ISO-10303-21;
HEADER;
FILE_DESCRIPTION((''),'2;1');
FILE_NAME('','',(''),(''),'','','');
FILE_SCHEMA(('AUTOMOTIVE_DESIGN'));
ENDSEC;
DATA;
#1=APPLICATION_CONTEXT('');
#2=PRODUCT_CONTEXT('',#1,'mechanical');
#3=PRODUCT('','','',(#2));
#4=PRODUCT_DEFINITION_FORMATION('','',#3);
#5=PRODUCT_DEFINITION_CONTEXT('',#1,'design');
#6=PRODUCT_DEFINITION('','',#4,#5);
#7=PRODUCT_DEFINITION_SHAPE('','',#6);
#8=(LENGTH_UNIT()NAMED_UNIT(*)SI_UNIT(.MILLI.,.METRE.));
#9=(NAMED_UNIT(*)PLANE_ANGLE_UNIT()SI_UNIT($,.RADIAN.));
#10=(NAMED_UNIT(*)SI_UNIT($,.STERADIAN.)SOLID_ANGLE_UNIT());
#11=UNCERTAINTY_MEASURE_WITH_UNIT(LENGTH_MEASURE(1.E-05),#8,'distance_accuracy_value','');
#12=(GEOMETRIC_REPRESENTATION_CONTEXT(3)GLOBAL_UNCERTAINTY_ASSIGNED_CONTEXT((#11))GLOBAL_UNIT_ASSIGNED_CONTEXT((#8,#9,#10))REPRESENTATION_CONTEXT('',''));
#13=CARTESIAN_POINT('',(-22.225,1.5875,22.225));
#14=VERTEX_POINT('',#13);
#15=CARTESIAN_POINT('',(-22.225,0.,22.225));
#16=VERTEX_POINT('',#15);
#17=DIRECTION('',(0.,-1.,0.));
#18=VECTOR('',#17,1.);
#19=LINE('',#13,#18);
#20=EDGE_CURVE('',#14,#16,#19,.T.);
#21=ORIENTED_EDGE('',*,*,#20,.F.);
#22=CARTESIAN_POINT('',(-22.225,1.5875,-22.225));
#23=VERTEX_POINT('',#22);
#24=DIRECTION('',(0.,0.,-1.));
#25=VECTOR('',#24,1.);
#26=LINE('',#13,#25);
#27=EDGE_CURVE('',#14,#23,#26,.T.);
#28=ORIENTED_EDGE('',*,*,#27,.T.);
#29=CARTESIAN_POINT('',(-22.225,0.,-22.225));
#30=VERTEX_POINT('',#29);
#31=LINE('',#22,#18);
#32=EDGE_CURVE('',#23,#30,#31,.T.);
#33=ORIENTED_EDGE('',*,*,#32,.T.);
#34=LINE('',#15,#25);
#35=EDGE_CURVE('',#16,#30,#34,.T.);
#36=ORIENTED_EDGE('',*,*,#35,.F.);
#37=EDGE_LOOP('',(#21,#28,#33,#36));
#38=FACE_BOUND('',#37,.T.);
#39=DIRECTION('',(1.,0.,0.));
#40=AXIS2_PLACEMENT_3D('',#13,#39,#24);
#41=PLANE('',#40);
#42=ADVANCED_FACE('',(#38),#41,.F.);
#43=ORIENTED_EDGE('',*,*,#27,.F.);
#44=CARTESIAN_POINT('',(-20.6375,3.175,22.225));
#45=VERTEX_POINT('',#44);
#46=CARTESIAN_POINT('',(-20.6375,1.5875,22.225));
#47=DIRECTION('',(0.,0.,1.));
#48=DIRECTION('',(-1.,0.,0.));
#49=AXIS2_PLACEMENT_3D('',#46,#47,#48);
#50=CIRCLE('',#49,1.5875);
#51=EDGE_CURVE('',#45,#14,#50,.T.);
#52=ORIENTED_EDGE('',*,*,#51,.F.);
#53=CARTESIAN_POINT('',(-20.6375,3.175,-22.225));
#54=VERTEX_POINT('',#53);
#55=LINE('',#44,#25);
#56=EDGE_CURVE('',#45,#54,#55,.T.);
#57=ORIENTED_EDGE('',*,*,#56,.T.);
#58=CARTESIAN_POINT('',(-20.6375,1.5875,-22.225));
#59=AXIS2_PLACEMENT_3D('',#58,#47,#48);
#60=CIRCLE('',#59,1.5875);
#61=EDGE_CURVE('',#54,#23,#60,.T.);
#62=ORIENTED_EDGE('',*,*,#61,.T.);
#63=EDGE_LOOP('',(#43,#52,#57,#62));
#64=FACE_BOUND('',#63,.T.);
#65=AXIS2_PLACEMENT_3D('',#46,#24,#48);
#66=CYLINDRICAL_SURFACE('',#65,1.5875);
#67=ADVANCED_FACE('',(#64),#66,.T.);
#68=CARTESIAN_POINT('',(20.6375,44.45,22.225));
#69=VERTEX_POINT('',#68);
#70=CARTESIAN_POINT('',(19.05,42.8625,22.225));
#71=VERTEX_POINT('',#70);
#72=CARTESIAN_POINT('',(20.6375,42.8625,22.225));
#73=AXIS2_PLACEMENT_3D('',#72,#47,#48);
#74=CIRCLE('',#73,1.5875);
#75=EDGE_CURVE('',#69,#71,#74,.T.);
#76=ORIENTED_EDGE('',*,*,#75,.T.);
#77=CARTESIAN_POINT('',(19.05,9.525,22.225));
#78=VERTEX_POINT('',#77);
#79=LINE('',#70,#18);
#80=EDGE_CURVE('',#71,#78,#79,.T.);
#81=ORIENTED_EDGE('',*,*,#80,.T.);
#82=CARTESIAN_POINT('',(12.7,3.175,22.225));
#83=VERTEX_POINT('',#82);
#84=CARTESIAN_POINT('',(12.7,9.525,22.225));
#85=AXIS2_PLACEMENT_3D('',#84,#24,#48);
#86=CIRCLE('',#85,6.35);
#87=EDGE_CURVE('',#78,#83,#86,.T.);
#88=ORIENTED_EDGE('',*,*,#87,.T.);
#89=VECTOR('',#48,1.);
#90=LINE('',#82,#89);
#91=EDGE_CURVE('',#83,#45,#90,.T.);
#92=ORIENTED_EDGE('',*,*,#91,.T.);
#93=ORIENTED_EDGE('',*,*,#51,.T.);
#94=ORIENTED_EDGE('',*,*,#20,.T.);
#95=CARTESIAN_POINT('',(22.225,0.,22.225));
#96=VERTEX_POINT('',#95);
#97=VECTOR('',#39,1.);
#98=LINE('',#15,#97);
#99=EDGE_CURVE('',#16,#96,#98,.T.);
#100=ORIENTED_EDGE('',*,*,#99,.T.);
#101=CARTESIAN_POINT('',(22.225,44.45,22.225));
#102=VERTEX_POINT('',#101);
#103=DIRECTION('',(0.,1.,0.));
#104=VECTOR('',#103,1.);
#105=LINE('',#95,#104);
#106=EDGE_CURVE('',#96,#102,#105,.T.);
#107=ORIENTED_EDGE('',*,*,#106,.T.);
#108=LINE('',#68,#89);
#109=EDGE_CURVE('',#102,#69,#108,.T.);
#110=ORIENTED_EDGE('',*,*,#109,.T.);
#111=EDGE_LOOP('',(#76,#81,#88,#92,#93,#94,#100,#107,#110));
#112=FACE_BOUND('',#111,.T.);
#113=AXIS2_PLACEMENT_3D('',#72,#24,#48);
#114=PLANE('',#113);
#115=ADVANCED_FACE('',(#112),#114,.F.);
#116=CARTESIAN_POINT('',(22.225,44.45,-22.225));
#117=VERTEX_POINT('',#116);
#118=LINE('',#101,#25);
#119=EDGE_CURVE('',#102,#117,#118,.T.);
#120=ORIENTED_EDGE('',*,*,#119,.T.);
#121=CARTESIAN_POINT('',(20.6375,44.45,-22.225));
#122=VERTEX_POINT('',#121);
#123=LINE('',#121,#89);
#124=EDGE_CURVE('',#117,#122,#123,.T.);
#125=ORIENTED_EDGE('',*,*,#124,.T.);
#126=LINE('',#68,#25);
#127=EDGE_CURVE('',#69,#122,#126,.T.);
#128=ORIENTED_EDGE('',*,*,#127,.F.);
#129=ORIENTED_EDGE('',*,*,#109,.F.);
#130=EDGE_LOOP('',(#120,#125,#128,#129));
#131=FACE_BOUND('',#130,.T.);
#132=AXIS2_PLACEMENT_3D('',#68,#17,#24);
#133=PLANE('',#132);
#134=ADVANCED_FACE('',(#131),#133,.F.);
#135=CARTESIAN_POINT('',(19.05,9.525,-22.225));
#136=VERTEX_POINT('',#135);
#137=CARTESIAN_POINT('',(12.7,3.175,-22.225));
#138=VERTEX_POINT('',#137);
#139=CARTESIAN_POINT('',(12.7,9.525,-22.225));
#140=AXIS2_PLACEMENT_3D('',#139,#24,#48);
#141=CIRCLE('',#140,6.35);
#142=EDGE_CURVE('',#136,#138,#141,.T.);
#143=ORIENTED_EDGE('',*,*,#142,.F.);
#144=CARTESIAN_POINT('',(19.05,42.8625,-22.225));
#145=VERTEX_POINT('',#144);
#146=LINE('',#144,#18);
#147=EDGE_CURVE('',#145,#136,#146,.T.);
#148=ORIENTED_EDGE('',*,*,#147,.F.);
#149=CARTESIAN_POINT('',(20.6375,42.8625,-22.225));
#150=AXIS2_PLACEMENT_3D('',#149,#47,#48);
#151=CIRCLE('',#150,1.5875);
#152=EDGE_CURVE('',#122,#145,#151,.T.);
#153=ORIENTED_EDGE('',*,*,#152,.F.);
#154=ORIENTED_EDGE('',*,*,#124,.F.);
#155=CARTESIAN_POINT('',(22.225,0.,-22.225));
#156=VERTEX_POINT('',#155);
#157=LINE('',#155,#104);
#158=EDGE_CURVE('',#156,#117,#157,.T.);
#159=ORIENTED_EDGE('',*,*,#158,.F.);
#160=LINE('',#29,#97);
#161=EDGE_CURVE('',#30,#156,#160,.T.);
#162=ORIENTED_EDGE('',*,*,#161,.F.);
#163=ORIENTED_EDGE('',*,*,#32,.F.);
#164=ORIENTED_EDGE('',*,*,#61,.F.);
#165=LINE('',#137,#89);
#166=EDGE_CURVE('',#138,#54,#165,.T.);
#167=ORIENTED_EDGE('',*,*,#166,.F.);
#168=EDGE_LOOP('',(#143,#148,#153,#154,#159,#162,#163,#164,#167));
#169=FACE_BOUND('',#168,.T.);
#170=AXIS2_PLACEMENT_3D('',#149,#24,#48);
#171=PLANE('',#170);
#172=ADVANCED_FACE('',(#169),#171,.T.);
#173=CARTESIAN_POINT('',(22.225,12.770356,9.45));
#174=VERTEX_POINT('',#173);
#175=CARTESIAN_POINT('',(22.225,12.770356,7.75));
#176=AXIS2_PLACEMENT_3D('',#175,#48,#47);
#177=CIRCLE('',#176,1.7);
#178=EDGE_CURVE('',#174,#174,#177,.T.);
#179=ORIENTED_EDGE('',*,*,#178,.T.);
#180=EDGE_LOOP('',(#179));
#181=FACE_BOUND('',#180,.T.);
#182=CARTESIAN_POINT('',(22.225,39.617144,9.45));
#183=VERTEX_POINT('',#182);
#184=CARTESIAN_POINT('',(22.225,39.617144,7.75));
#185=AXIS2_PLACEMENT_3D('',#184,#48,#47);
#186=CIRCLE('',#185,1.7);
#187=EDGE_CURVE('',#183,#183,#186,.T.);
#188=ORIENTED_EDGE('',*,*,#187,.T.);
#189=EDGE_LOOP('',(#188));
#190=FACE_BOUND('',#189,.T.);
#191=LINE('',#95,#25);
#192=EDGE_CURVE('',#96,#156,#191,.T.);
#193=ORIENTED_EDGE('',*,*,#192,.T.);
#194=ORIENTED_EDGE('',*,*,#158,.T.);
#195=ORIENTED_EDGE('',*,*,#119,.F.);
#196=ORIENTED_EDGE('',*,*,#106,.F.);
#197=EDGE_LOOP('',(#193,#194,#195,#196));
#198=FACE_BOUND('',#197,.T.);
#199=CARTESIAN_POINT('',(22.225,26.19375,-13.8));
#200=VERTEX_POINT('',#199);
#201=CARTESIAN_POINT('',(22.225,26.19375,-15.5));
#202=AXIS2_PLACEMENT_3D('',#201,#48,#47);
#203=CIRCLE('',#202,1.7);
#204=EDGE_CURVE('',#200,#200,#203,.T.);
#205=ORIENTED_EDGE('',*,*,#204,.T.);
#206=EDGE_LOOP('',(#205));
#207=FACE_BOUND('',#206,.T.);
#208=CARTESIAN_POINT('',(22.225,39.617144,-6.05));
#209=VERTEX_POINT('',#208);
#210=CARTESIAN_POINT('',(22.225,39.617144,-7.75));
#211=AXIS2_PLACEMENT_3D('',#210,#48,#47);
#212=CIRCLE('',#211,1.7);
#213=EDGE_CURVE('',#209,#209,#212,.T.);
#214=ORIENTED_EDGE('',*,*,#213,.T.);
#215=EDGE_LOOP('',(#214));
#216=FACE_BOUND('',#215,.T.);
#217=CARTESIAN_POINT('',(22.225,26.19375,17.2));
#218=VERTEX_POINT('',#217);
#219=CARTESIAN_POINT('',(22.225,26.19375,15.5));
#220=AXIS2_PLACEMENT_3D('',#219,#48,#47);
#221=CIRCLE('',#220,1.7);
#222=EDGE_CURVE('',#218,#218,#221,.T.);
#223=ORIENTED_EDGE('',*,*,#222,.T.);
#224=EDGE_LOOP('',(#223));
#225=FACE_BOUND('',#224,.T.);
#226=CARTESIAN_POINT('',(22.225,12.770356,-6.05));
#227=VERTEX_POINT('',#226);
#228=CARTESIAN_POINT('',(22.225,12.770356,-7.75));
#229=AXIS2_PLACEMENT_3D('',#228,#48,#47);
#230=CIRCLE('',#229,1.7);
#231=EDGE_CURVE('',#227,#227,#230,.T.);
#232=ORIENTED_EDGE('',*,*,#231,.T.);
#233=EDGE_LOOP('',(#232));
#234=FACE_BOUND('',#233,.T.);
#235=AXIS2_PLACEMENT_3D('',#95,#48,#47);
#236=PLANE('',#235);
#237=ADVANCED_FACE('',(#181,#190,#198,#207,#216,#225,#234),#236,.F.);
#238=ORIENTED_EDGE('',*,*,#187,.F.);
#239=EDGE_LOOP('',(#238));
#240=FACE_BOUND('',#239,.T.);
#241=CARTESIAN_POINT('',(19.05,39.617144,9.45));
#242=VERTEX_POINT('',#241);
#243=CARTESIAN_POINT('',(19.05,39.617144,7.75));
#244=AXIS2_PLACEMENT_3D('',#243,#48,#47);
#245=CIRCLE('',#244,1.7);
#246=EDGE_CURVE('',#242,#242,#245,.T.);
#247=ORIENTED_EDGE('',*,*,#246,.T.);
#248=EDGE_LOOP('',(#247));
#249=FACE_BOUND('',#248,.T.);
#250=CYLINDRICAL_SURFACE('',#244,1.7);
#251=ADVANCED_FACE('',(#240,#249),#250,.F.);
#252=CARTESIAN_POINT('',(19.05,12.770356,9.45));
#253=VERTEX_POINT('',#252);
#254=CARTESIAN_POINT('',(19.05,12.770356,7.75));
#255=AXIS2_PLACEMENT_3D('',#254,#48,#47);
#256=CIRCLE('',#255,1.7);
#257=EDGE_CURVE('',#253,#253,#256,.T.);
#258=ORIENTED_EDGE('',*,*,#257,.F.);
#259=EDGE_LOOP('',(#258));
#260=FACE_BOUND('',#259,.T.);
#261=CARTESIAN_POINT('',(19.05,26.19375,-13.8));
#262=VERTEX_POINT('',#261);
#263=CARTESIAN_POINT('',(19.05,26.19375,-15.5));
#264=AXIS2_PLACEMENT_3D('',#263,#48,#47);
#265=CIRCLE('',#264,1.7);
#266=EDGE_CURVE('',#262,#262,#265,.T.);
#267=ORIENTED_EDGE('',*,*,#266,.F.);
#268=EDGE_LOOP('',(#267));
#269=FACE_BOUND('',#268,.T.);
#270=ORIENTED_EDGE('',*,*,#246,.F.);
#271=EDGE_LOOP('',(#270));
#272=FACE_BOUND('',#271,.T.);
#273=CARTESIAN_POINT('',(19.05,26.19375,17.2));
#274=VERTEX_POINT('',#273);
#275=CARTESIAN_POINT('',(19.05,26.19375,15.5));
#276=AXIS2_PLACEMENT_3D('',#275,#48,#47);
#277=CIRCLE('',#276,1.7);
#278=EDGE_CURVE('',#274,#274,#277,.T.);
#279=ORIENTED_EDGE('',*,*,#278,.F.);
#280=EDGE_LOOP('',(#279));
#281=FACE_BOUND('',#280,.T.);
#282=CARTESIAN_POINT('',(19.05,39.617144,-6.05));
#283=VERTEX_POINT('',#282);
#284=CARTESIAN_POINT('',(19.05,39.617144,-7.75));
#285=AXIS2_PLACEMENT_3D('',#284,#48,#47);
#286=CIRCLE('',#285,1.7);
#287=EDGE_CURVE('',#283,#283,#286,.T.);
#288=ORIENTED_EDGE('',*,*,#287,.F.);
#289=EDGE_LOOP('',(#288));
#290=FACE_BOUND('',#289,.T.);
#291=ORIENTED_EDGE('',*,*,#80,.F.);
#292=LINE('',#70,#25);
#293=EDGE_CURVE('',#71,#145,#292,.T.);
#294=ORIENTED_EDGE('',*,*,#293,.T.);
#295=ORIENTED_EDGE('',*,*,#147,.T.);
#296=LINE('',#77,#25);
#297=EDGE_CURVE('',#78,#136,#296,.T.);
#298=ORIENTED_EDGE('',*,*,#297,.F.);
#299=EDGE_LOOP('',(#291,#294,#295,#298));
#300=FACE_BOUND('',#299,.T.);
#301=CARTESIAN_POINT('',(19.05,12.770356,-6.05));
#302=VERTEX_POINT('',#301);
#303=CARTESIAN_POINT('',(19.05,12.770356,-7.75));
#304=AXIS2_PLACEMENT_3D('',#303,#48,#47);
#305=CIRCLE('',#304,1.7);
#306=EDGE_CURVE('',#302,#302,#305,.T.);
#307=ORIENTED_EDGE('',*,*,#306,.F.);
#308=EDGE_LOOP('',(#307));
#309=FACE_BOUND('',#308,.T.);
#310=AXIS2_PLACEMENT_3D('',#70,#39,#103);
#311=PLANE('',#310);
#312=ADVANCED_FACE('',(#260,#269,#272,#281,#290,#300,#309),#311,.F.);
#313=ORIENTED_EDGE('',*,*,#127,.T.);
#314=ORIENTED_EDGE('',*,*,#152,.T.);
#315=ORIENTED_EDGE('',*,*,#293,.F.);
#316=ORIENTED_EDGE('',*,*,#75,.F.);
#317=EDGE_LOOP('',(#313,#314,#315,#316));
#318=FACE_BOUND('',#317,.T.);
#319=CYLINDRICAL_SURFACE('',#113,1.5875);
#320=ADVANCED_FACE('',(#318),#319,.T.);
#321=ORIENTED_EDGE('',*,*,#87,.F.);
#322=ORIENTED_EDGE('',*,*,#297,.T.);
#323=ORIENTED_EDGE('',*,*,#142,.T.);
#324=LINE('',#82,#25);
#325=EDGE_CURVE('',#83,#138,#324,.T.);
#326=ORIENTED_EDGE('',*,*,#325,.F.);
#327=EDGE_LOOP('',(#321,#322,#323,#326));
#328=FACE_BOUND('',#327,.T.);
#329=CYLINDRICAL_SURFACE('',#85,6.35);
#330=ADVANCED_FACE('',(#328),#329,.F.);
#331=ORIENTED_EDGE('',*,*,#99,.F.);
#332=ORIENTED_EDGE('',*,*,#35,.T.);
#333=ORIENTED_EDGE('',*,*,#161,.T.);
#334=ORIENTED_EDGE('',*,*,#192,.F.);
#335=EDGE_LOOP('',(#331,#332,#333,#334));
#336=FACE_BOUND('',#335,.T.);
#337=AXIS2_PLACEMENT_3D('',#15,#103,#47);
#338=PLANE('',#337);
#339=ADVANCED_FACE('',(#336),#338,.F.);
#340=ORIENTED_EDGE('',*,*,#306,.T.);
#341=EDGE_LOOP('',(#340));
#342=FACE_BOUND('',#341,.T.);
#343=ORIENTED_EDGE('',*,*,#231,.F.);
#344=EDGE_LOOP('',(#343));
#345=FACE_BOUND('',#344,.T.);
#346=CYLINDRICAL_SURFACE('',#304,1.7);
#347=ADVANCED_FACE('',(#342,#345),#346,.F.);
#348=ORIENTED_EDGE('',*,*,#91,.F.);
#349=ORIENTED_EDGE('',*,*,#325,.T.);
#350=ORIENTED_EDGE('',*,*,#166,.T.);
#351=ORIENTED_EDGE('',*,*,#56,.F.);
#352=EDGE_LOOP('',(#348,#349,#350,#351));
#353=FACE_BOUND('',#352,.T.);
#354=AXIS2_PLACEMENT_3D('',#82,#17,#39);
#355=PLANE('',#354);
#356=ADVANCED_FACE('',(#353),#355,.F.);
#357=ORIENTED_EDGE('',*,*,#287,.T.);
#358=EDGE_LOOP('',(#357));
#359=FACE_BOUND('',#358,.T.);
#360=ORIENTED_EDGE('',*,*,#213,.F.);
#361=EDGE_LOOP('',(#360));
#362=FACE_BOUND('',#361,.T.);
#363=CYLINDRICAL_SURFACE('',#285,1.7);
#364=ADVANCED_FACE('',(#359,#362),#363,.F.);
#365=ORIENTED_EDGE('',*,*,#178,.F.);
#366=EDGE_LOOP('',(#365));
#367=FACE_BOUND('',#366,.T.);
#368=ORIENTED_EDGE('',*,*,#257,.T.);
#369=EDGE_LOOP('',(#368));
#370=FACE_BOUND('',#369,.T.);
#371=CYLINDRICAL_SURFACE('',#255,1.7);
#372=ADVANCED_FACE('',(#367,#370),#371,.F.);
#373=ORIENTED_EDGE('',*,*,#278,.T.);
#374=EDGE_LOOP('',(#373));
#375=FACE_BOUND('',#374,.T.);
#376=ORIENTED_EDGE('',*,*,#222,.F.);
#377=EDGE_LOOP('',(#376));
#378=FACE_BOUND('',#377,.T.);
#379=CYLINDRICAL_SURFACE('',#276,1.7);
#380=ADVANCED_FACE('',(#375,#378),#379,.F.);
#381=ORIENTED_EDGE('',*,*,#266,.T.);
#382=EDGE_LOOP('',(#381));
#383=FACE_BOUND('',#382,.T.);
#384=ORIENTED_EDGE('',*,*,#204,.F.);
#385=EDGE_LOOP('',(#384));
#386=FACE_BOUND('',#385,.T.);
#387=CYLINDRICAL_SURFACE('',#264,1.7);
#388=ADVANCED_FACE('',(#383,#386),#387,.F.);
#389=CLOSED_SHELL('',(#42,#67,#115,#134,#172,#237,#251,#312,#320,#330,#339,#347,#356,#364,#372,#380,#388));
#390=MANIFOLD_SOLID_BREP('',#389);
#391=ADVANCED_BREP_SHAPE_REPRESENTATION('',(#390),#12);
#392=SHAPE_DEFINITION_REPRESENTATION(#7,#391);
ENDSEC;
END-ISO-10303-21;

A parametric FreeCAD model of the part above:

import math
import FreeCAD as App
import Part
import Sketcher

V = App.Vector
Q = App.Units.Quantity

doc = App.newDocument("Part")
body = doc.addObject("PartDesign::Body", "Body")

sketch1 = doc.addObject("Sketcher::SketchObject", "Sketch")
body.addObject(sketch1)
sketch1.AttachmentSupport = (doc.XY_Plane, [""])
sketch1.MapMode = "FlatFace"
sketch1.addGeometry(Part.LineSegment(V(-22.225, 0, 0), V(22.225, 0, 0)), False)
sketch1.addGeometry(Part.LineSegment(V(22.225, 0, 0), V(22.225, 44.45, 0)), False)
sketch1.addGeometry(Part.LineSegment(V(22.225, 44.45, 0), V(20.6375, 44.45, 0)), False)
sketch1.addGeometry(Part.ArcOfCircle(Part.Circle(V(20.6375, 42.8625, 0), V(0, 0, 1), 1.5875), math.radians(90), math.radians(180)), False)
sketch1.addGeometry(Part.LineSegment(V(19.05, 42.8625, 0), V(19.05, 9.525, 0)), False)
sketch1.addGeometry(Part.ArcOfCircle(Part.Circle(V(12.7, 9.525, 0), V(0, 0, 1), 6.35), math.radians(-90), math.radians(0)), False)
sketch1.addGeometry(Part.LineSegment(V(12.7, 3.175, 0), V(-20.6375, 3.175, 0)), False)
sketch1.addGeometry(Part.ArcOfCircle(Part.Circle(V(-20.6375, 1.5875, 0), V(0, 0, 1), 1.5875), math.radians(90), math.radians(180)), False)
sketch1.addGeometry(Part.LineSegment(V(-22.225, 1.5875, 0), V(-22.225, 0, 0)), False)
sketch1.addConstraint(Sketcher.Constraint("Coincident", 0, 2, 1, 1))
sketch1.addConstraint(Sketcher.Constraint("Coincident", 1, 2, 2, 1))
sketch1.addConstraint(Sketcher.Constraint("Tangent", 2, 2, 3, 1))
sketch1.addConstraint(Sketcher.Constraint("Tangent", 3, 2, 4, 1))
sketch1.addConstraint(Sketcher.Constraint("Tangent", 4, 2, 5, 2))
sketch1.addConstraint(Sketcher.Constraint("Tangent", 5, 1, 6, 1))
sketch1.addConstraint(Sketcher.Constraint("Tangent", 6, 2, 7, 1))
sketch1.addConstraint(Sketcher.Constraint("Tangent", 7, 2, 8, 1))
sketch1.addConstraint(Sketcher.Constraint("Coincident", 8, 2, 0, 1))
sketch1.addConstraint(Sketcher.Constraint("Horizontal", 0))
sketch1.addConstraint(Sketcher.Constraint("Vertical", 1))
sketch1.addConstraint(Sketcher.Constraint("Horizontal", 2))
sketch1.addConstraint(Sketcher.Constraint("Vertical", 4))
sketch1.addConstraint(Sketcher.Constraint("Horizontal", 6))
sketch1.addConstraint(Sketcher.Constraint("Vertical", 8))
sketch1.addConstraint(Sketcher.Constraint("Equal", 3, 7))
sketch1.addConstraint(Sketcher.Constraint("Symmetric", 0, 2, 8, 2, -1, 1))
sketch1.addConstraint(Sketcher.Constraint("Equal", 0, 1))
sketch1.addConstraint(Sketcher.Constraint("Equal", 6, 4))
sketch1.addConstraint(Sketcher.Constraint("Radius", 5, Q("0.25 in")))
sketch1.addConstraint(Sketcher.Constraint("Radius", 3, Q("0.0625 in")))
sketch1.addConstraint(Sketcher.Constraint("DistanceX", 0, 1, 0, 2, Q("1.75 in")))
sketch1.addConstraint(Sketcher.Constraint("DistanceX", -1, 1, 5, 3, Q("0.5 in")))
pad1 = doc.addObject("PartDesign::Pad", "Pad")
body.addObject(pad1)
pad1.Profile = sketch1
pad1.Length = Q("1.75 in")
pad1.Midplane = True

sketch2 = doc.addObject("Sketcher::SketchObject", "Sketch001")
body.addObject(sketch2)
sketch2.AttachmentSupport = (doc.YZ_Plane, [""])
sketch2.MapMode = "FlatFace"
sketch2.AttachmentOffset = App.Placement(V(0, 0, 0.75 * 25.4), App.Rotation())
sketch2.addGeometry(Part.Circle(V(12.770356, 7.75, 0), V(0, 0, 1), 1.7), False)
sketch2.addGeometry(Part.Circle(V(26.19375, 15.5, 0), V(0, 0, 1), 1.7), False)
sketch2.addGeometry(Part.Circle(V(39.617144, 7.75, 0), V(0, 0, 1), 1.7), False)
sketch2.addGeometry(Part.Circle(V(39.617144, -7.75, 0), V(0, 0, 1), 1.7), False)
sketch2.addGeometry(Part.Circle(V(26.19375, -15.5, 0), V(0, 0, 1), 1.7), False)
sketch2.addGeometry(Part.Circle(V(12.770356, -7.75, 0), V(0, 0, 1), 1.7), False)
sketch2.addConstraint(Sketcher.Constraint("Equal", 0, 1))
sketch2.addConstraint(Sketcher.Constraint("Equal", 1, 2))
sketch2.addConstraint(Sketcher.Constraint("Equal", 2, 3))
sketch2.addConstraint(Sketcher.Constraint("Equal", 3, 4))
sketch2.addConstraint(Sketcher.Constraint("Equal", 4, 5))
sketch2.addConstraint(Sketcher.Constraint("Symmetric", 2, 3, 3, 3, -1))
sketch2.addConstraint(Sketcher.Constraint("Symmetric", 1, 3, 4, 3, -1))
sketch2.addConstraint(Sketcher.Constraint("Symmetric", 0, 3, 5, 3, -1))
sketch2.addConstraint(Sketcher.Constraint("Horizontal", 0, 3, 2, 3))
sketch2.addConstraint(Sketcher.Constraint("Diameter", 0, Q("3.4 mm")))
sketch2.addConstraint(Sketcher.Constraint("DistanceX", -1, 1, 1, 3, Q("1.03125 in")))
sketch2.addConstraint(Sketcher.Constraint("DistanceY", -1, 1, 0, 3, Q("7.75 mm")))
sketch2.addConstraint(Sketcher.Constraint("DistanceY", -1, 1, 1, 3, Q("15.5 mm")))
sketch2.addConstraint(Sketcher.Constraint("DistanceX", -1, 1, 0, 3, Q("12.770356 mm")))
sketch2.addConstraint(Sketcher.Constraint("DistanceX", -1, 1, 2, 3, Q("39.617144 mm")))
doc.recompute()
hole = doc.addObject("PartDesign::Hole", "Hole")
body.addObject(hole)
hole.Profile = sketch2
hole.ThreadType = "None"
hole.Diameter = 3.4
hole.DepthType = "ThroughAll"
hole.Reversed = True

doc.recompute()
